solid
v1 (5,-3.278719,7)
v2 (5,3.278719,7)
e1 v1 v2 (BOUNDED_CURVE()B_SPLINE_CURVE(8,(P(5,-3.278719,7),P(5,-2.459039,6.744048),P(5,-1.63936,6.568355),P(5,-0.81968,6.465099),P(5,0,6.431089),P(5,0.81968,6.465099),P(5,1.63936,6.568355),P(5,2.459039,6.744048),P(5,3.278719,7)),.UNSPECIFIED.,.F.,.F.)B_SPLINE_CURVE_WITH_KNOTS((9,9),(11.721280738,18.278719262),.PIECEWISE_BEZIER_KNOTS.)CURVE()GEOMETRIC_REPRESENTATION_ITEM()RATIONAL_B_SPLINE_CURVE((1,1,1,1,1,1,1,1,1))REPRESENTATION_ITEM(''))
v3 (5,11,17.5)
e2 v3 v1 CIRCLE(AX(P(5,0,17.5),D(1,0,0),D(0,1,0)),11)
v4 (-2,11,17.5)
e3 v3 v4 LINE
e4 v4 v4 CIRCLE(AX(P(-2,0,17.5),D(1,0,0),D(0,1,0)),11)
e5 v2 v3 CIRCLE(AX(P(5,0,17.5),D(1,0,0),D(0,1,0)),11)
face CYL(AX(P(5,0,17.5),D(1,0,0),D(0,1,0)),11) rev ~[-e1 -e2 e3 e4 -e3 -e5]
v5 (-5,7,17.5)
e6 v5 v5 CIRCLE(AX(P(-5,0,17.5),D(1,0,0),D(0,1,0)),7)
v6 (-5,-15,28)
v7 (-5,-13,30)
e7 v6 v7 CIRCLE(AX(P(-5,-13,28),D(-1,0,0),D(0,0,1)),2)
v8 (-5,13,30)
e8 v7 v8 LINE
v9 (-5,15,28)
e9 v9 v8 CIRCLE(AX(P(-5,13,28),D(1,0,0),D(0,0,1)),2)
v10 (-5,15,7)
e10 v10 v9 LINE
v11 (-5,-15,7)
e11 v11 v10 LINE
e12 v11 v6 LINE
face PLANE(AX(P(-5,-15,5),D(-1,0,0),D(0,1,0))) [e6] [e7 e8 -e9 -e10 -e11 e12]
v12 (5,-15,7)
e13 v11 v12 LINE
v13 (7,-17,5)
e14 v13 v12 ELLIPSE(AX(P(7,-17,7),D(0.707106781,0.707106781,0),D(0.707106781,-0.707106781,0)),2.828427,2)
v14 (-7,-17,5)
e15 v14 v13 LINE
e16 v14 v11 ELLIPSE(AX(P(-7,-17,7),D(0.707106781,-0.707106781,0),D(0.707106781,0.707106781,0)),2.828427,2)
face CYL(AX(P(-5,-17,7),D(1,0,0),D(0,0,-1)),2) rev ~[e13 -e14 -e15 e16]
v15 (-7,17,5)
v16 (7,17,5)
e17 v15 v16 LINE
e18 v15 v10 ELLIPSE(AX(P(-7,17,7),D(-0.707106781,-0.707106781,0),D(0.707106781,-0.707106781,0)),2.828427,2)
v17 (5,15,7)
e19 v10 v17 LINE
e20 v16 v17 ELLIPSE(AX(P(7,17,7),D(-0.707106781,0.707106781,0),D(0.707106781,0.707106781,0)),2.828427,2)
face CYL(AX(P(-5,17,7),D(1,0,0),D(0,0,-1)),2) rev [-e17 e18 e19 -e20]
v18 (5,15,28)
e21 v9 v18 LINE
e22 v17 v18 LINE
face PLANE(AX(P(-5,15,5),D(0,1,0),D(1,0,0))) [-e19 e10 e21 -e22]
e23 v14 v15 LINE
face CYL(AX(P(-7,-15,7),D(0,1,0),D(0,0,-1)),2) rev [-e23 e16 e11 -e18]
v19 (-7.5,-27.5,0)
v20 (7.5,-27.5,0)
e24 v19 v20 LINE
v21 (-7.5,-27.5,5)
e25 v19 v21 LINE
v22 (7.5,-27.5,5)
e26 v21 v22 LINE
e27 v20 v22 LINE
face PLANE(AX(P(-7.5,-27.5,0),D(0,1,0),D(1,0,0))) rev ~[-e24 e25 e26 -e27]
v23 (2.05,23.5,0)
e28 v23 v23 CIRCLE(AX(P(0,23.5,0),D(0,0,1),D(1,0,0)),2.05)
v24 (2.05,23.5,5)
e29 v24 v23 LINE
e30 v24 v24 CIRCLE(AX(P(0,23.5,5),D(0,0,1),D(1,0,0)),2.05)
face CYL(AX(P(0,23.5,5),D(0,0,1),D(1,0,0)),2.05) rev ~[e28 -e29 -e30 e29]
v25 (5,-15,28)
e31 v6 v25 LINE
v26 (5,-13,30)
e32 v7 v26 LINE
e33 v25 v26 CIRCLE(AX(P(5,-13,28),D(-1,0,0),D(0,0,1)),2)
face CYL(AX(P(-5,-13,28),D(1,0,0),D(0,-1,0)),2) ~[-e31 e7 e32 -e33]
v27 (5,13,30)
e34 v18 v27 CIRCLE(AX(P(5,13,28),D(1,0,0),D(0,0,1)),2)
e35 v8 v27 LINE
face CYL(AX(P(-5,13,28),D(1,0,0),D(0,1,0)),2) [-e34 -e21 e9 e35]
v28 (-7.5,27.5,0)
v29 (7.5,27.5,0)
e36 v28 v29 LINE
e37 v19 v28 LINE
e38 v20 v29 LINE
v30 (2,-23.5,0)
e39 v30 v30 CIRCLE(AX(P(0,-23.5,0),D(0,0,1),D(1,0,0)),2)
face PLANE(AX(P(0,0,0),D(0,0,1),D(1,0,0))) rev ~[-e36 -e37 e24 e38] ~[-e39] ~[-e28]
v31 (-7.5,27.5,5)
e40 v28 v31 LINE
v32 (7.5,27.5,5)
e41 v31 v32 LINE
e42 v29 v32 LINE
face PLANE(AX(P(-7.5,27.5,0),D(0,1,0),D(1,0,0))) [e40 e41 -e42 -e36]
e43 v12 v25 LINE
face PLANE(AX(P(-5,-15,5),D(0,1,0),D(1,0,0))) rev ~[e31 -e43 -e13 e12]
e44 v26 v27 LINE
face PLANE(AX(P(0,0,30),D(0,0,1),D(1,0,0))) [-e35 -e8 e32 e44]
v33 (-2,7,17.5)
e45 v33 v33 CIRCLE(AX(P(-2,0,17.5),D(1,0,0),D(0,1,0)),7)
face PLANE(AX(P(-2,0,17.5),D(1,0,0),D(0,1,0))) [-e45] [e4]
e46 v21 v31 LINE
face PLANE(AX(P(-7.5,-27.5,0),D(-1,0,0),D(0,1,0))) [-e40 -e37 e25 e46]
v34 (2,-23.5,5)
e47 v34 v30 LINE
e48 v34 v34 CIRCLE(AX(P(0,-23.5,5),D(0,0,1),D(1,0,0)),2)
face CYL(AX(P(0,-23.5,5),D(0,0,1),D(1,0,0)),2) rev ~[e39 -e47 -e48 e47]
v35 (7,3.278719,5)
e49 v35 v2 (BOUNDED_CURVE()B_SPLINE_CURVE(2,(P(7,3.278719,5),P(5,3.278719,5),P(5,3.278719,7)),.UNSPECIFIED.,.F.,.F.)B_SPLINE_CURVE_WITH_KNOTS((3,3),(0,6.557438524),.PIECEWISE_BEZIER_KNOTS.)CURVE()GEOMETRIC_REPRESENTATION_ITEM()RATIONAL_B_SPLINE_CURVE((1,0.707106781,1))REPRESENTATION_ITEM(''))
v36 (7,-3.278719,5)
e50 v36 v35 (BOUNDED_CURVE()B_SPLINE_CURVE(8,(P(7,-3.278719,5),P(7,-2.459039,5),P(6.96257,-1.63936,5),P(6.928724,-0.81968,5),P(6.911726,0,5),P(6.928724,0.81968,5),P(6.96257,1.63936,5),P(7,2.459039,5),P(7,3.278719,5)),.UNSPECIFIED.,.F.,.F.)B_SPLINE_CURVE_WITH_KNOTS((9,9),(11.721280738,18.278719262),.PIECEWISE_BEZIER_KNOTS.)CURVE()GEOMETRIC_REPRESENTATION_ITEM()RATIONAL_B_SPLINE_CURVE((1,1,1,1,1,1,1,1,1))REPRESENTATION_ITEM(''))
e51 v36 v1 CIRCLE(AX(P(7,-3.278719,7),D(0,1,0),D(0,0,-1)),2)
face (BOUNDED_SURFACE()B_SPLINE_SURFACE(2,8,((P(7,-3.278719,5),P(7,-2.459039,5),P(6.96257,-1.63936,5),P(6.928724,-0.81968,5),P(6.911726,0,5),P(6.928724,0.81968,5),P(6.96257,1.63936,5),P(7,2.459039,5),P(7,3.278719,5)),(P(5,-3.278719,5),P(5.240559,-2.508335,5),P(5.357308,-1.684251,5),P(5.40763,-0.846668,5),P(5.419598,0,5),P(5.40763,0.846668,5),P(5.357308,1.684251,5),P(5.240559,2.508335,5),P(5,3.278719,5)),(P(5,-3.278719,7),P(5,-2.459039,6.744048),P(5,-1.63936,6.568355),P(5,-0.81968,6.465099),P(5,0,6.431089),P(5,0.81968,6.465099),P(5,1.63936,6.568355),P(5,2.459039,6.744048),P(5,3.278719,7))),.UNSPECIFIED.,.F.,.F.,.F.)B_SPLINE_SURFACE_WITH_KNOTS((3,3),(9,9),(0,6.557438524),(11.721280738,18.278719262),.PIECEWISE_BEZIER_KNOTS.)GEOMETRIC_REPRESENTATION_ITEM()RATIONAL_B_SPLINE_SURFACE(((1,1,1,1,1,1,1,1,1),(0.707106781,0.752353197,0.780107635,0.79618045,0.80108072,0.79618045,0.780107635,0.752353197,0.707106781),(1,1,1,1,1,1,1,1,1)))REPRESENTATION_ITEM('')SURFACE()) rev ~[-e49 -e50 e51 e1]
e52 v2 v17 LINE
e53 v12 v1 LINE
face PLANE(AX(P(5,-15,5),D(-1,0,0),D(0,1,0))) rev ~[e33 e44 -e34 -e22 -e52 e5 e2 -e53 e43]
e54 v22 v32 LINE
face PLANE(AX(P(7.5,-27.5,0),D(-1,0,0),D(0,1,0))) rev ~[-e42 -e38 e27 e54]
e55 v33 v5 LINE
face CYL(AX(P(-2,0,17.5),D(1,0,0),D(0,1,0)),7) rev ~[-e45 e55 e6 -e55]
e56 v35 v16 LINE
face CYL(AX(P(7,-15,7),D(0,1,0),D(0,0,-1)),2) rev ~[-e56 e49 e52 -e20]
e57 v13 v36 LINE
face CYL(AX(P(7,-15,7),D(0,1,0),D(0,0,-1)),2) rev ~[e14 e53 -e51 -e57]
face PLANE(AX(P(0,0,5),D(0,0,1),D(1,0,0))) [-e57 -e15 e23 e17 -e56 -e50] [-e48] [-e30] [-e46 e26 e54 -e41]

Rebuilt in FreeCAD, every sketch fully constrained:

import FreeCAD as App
import Part
import Sketcher
from FreeCAD import Vector


def edges_at(feature, points):
    """Names of the edges that pass closest to the given points."""
    edges = feature.Shape.Edges
    near = lambda p: min(range(len(edges)), key=lambda i: edges[i].distToShape(Part.Vertex(*p))[0])
    return sorted({f"Edge{near(p) + 1}" for p in points})

doc = App.newDocument("Part")
params = doc.addObject("Spreadsheet::Sheet", "Params")
for row, (alias, value) in enumerate([
    ("sketch1_width", "15 mm"),
    ("sketch1_height", "55 mm"),
    ("pad1_length", "5 mm"),
    ("sketch2_width", "10 mm"),
    ("sketch2_height", "30 mm"),
    ("pad2_length", "25 mm"),
    ("sketch3_diameter", "22 mm"),
    ("pocket1_length", "7 mm"),
    ("sketch4_diameter", "4 mm"),
    ("sketch4_diameter2", "4.1 mm"),
    ("pocket2_length", "25 mm"),
    ("fillet_radius", "2 mm"),
    ("sketch5_diameter", "14 mm"),
], start=1):
    params.set(f"A{row}", alias)
    params.set(f"B{row}", "=" + value)
    params.setAlias(f"B{row}", alias)

body = doc.addObject("PartDesign::Body", "Body")

sketch1 = doc.addObject("Sketcher::SketchObject", "Sketch")
body.addObject(sketch1)
sketch1.AttachmentSupport = (doc.XY_Plane, [""])
sketch1.MapMode = "FlatFace"
sketch1.addGeometry(Part.LineSegment(Vector(-8, 28, 0), Vector(-8, -28, 0)), False)
sketch1.addGeometry(Part.LineSegment(Vector(-8, -28, 0), Vector(8, -28, 0)), False)
sketch1.addGeometry(Part.LineSegment(Vector(8, -28, 0), Vector(8, 28, 0)), False)
sketch1.addGeometry(Part.LineSegment(Vector(8, 28, 0), Vector(-8, 28, 0)), False)
sketch1.addConstraint(Sketcher.Constraint("Coincident", 0, 2, 1, 1))
sketch1.addConstraint(Sketcher.Constraint("Coincident", 1, 2, 2, 1))
sketch1.addConstraint(Sketcher.Constraint("Coincident", 2, 2, 3, 1))
sketch1.addConstraint(Sketcher.Constraint("Coincident", 3, 2, 0, 1))
sketch1.addConstraint(Sketcher.Constraint("Vertical", 0))
sketch1.addConstraint(Sketcher.Constraint("Horizontal", 1))
sketch1.addConstraint(Sketcher.Constraint("Vertical", 2))
sketch1.addConstraint(Sketcher.Constraint("Horizontal", 3))
sketch1.addConstraint(Sketcher.Constraint("Symmetric", 0, 2, 2, 2, -1, 1))
sketch1.addConstraint(Sketcher.Constraint("DistanceX", 1, 1, 1, 2, 15.0))
sketch1.addConstraint(Sketcher.Constraint("DistanceY", 0, 2, 0, 1, 55.0))
sketch1.setExpression("Constraints[9]", "Params.sketch1_width")
sketch1.setExpression("Constraints[10]", "Params.sketch1_height")
pad1 = doc.addObject("PartDesign::Pad", "Pad")
body.addObject(pad1)
pad1.Profile = sketch1
pad1.setExpression("Length", "Params.pad1_length")

sketch2 = doc.addObject("Sketcher::SketchObject", "Sketch001")
body.addObject(sketch2)
sketch2.AttachmentSupport = (doc.XY_Plane, [""])
sketch2.MapMode = "FlatFace"
sketch2.AttachmentOffset = App.Placement(Vector(0, 0, 5), App.Rotation())
sketch2.addGeometry(Part.LineSegment(Vector(-5, 15, 0), Vector(-5, -15, 0)), False)
sketch2.addGeometry(Part.LineSegment(Vector(-5, -15, 0), Vector(5, -15, 0)), False)
sketch2.addGeometry(Part.LineSegment(Vector(5, -15, 0), Vector(5, 15, 0)), False)
sketch2.addGeometry(Part.LineSegment(Vector(5, 15, 0), Vector(-5, 15, 0)), False)
sketch2.addConstraint(Sketcher.Constraint("Coincident", 0, 2, 1, 1))
sketch2.addConstraint(Sketcher.Constraint("Coincident", 1, 2, 2, 1))
sketch2.addConstraint(Sketcher.Constraint("Coincident", 2, 2, 3, 1))
sketch2.addConstraint(Sketcher.Constraint("Coincident", 3, 2, 0, 1))
sketch2.addConstraint(Sketcher.Constraint("Vertical", 0))
sketch2.addConstraint(Sketcher.Constraint("Horizontal", 1))
sketch2.addConstraint(Sketcher.Constraint("Vertical", 2))
sketch2.addConstraint(Sketcher.Constraint("Horizontal", 3))
sketch2.addConstraint(Sketcher.Constraint("Symmetric", 0, 2, 2, 2, -1, 1))
sketch2.addConstraint(Sketcher.Constraint("DistanceX", 1, 1, 1, 2, 10.0))
sketch2.addConstraint(Sketcher.Constraint("DistanceY", 0, 2, 0, 1, 30.0))
sketch2.setExpression("Constraints[9]", "Params.sketch2_width")
sketch2.setExpression("Constraints[10]", "Params.sketch2_height")
pad2 = doc.addObject("PartDesign::Pad", "Pad001")
body.addObject(pad2)
pad2.Profile = sketch2
pad2.setExpression("Length", "Params.pad2_length")

sketch3 = doc.addObject("Sketcher::SketchObject", "Sketch002")
body.addObject(sketch3)
sketch3.AttachmentSupport = (doc.YZ_Plane, [""])
sketch3.MapMode = "FlatFace"
sketch3.AttachmentOffset = App.Placement(Vector(0, 0, 5), App.Rotation())
sketch3.addGeometry(Part.Circle(Vector(0, 18, 0), Vector(0, 0, 1), 11), False)
sketch3.addConstraint(Sketcher.Constraint("PointOnObject", 0, 3, -2))
sketch3.addConstraint(Sketcher.Constraint("Diameter", 0, 22.0))
sketch3.addConstraint(Sketcher.Constraint("DistanceY", -1, 1, 0, 3, 17.5))
sketch3.setExpression("Constraints[1]", "Params.sketch3_diameter")
pocket1 = doc.addObject("PartDesign::Pocket", "Pocket")
body.addObject(pocket1)
pocket1.Profile = sketch3
pocket1.setExpression("Length", "Params.pocket1_length")

sketch4 = doc.addObject("Sketcher::SketchObject", "Sketch003")
body.addObject(sketch4)
sketch4.AttachmentSupport = (doc.XY_Plane, [""])
sketch4.MapMode = "FlatFace"
sketch4.AttachmentOffset = App.Placement(Vector(0, 0, 5), App.Rotation())
sketch4.addGeometry(Part.Circle(Vector(0, -23.5, 0), Vector(0, 0, 1), 2), False)
sketch4.addGeometry(Part.Circle(Vector(0, 23.5, 0), Vector(0, 0, 1), 2), False)
sketch4.addConstraint(Sketcher.Constraint("Symmetric", 0, 3, 1, 3, -1, 1))
sketch4.addConstraint(Sketcher.Constraint("PointOnObject", 0, 3, -2))
sketch4.addConstraint(Sketcher.Constraint("Diameter", 0, 4.0))
sketch4.addConstraint(Sketcher.Constraint("Diameter", 1, 4.1))
sketch4.addConstraint(Sketcher.Constraint("DistanceY", 0, 3, 1, 3, 47.0))
sketch4.setExpression("Constraints[2]", "Params.sketch4_diameter")
sketch4.setExpression("Constraints[3]", "Params.sketch4_diameter2")
pocket2 = doc.addObject("PartDesign::Pocket", "Pocket001")
body.addObject(pocket2)
pocket2.Profile = sketch4
pocket2.setExpression("Length", "Params.pocket2_length")
doc.recompute()

fillet = doc.addObject("PartDesign::Fillet", "Fillet")
body.addObject(fillet)
fillet.Base = (pocket2, edges_at(pocket2, [
    (0, -15, 30),
    (0, -15, 5),
    (5, 0, 5),
    (0, 15, 30),
    (0, 15, 5),
    (-5, 0, 5),
]))
fillet.setExpression("Radius", "Params.fillet_radius")

sketch5 = doc.addObject("Sketcher::SketchObject", "Sketch004")
body.addObject(sketch5)
sketch5.AttachmentSupport = (doc.YZ_Plane, [""])
sketch5.MapMode = "FlatFace"
sketch5.AttachmentOffset = App.Placement(Vector(0, 0, -2), App.Rotation())
sketch5.addGeometry(Part.Circle(Vector(0, 18, 0), Vector(0, 0, 1), 7), False)
sketch5.addConstraint(Sketcher.Constraint("PointOnObject", 0, 3, -2))
sketch5.addConstraint(Sketcher.Constraint("Diameter", 0, 14.0))
sketch5.addConstraint(Sketcher.Constraint("DistanceY", -1, 1, 0, 3, 17.5))
sketch5.setExpression("Constraints[1]", "Params.sketch5_diameter")
pocket3 = doc.addObject("PartDesign::Pocket", "Pocket002")
body.addObject(pocket3)
pocket3.Profile = sketch5
pocket3.Type = "ThroughAll"

doc.recompute()
